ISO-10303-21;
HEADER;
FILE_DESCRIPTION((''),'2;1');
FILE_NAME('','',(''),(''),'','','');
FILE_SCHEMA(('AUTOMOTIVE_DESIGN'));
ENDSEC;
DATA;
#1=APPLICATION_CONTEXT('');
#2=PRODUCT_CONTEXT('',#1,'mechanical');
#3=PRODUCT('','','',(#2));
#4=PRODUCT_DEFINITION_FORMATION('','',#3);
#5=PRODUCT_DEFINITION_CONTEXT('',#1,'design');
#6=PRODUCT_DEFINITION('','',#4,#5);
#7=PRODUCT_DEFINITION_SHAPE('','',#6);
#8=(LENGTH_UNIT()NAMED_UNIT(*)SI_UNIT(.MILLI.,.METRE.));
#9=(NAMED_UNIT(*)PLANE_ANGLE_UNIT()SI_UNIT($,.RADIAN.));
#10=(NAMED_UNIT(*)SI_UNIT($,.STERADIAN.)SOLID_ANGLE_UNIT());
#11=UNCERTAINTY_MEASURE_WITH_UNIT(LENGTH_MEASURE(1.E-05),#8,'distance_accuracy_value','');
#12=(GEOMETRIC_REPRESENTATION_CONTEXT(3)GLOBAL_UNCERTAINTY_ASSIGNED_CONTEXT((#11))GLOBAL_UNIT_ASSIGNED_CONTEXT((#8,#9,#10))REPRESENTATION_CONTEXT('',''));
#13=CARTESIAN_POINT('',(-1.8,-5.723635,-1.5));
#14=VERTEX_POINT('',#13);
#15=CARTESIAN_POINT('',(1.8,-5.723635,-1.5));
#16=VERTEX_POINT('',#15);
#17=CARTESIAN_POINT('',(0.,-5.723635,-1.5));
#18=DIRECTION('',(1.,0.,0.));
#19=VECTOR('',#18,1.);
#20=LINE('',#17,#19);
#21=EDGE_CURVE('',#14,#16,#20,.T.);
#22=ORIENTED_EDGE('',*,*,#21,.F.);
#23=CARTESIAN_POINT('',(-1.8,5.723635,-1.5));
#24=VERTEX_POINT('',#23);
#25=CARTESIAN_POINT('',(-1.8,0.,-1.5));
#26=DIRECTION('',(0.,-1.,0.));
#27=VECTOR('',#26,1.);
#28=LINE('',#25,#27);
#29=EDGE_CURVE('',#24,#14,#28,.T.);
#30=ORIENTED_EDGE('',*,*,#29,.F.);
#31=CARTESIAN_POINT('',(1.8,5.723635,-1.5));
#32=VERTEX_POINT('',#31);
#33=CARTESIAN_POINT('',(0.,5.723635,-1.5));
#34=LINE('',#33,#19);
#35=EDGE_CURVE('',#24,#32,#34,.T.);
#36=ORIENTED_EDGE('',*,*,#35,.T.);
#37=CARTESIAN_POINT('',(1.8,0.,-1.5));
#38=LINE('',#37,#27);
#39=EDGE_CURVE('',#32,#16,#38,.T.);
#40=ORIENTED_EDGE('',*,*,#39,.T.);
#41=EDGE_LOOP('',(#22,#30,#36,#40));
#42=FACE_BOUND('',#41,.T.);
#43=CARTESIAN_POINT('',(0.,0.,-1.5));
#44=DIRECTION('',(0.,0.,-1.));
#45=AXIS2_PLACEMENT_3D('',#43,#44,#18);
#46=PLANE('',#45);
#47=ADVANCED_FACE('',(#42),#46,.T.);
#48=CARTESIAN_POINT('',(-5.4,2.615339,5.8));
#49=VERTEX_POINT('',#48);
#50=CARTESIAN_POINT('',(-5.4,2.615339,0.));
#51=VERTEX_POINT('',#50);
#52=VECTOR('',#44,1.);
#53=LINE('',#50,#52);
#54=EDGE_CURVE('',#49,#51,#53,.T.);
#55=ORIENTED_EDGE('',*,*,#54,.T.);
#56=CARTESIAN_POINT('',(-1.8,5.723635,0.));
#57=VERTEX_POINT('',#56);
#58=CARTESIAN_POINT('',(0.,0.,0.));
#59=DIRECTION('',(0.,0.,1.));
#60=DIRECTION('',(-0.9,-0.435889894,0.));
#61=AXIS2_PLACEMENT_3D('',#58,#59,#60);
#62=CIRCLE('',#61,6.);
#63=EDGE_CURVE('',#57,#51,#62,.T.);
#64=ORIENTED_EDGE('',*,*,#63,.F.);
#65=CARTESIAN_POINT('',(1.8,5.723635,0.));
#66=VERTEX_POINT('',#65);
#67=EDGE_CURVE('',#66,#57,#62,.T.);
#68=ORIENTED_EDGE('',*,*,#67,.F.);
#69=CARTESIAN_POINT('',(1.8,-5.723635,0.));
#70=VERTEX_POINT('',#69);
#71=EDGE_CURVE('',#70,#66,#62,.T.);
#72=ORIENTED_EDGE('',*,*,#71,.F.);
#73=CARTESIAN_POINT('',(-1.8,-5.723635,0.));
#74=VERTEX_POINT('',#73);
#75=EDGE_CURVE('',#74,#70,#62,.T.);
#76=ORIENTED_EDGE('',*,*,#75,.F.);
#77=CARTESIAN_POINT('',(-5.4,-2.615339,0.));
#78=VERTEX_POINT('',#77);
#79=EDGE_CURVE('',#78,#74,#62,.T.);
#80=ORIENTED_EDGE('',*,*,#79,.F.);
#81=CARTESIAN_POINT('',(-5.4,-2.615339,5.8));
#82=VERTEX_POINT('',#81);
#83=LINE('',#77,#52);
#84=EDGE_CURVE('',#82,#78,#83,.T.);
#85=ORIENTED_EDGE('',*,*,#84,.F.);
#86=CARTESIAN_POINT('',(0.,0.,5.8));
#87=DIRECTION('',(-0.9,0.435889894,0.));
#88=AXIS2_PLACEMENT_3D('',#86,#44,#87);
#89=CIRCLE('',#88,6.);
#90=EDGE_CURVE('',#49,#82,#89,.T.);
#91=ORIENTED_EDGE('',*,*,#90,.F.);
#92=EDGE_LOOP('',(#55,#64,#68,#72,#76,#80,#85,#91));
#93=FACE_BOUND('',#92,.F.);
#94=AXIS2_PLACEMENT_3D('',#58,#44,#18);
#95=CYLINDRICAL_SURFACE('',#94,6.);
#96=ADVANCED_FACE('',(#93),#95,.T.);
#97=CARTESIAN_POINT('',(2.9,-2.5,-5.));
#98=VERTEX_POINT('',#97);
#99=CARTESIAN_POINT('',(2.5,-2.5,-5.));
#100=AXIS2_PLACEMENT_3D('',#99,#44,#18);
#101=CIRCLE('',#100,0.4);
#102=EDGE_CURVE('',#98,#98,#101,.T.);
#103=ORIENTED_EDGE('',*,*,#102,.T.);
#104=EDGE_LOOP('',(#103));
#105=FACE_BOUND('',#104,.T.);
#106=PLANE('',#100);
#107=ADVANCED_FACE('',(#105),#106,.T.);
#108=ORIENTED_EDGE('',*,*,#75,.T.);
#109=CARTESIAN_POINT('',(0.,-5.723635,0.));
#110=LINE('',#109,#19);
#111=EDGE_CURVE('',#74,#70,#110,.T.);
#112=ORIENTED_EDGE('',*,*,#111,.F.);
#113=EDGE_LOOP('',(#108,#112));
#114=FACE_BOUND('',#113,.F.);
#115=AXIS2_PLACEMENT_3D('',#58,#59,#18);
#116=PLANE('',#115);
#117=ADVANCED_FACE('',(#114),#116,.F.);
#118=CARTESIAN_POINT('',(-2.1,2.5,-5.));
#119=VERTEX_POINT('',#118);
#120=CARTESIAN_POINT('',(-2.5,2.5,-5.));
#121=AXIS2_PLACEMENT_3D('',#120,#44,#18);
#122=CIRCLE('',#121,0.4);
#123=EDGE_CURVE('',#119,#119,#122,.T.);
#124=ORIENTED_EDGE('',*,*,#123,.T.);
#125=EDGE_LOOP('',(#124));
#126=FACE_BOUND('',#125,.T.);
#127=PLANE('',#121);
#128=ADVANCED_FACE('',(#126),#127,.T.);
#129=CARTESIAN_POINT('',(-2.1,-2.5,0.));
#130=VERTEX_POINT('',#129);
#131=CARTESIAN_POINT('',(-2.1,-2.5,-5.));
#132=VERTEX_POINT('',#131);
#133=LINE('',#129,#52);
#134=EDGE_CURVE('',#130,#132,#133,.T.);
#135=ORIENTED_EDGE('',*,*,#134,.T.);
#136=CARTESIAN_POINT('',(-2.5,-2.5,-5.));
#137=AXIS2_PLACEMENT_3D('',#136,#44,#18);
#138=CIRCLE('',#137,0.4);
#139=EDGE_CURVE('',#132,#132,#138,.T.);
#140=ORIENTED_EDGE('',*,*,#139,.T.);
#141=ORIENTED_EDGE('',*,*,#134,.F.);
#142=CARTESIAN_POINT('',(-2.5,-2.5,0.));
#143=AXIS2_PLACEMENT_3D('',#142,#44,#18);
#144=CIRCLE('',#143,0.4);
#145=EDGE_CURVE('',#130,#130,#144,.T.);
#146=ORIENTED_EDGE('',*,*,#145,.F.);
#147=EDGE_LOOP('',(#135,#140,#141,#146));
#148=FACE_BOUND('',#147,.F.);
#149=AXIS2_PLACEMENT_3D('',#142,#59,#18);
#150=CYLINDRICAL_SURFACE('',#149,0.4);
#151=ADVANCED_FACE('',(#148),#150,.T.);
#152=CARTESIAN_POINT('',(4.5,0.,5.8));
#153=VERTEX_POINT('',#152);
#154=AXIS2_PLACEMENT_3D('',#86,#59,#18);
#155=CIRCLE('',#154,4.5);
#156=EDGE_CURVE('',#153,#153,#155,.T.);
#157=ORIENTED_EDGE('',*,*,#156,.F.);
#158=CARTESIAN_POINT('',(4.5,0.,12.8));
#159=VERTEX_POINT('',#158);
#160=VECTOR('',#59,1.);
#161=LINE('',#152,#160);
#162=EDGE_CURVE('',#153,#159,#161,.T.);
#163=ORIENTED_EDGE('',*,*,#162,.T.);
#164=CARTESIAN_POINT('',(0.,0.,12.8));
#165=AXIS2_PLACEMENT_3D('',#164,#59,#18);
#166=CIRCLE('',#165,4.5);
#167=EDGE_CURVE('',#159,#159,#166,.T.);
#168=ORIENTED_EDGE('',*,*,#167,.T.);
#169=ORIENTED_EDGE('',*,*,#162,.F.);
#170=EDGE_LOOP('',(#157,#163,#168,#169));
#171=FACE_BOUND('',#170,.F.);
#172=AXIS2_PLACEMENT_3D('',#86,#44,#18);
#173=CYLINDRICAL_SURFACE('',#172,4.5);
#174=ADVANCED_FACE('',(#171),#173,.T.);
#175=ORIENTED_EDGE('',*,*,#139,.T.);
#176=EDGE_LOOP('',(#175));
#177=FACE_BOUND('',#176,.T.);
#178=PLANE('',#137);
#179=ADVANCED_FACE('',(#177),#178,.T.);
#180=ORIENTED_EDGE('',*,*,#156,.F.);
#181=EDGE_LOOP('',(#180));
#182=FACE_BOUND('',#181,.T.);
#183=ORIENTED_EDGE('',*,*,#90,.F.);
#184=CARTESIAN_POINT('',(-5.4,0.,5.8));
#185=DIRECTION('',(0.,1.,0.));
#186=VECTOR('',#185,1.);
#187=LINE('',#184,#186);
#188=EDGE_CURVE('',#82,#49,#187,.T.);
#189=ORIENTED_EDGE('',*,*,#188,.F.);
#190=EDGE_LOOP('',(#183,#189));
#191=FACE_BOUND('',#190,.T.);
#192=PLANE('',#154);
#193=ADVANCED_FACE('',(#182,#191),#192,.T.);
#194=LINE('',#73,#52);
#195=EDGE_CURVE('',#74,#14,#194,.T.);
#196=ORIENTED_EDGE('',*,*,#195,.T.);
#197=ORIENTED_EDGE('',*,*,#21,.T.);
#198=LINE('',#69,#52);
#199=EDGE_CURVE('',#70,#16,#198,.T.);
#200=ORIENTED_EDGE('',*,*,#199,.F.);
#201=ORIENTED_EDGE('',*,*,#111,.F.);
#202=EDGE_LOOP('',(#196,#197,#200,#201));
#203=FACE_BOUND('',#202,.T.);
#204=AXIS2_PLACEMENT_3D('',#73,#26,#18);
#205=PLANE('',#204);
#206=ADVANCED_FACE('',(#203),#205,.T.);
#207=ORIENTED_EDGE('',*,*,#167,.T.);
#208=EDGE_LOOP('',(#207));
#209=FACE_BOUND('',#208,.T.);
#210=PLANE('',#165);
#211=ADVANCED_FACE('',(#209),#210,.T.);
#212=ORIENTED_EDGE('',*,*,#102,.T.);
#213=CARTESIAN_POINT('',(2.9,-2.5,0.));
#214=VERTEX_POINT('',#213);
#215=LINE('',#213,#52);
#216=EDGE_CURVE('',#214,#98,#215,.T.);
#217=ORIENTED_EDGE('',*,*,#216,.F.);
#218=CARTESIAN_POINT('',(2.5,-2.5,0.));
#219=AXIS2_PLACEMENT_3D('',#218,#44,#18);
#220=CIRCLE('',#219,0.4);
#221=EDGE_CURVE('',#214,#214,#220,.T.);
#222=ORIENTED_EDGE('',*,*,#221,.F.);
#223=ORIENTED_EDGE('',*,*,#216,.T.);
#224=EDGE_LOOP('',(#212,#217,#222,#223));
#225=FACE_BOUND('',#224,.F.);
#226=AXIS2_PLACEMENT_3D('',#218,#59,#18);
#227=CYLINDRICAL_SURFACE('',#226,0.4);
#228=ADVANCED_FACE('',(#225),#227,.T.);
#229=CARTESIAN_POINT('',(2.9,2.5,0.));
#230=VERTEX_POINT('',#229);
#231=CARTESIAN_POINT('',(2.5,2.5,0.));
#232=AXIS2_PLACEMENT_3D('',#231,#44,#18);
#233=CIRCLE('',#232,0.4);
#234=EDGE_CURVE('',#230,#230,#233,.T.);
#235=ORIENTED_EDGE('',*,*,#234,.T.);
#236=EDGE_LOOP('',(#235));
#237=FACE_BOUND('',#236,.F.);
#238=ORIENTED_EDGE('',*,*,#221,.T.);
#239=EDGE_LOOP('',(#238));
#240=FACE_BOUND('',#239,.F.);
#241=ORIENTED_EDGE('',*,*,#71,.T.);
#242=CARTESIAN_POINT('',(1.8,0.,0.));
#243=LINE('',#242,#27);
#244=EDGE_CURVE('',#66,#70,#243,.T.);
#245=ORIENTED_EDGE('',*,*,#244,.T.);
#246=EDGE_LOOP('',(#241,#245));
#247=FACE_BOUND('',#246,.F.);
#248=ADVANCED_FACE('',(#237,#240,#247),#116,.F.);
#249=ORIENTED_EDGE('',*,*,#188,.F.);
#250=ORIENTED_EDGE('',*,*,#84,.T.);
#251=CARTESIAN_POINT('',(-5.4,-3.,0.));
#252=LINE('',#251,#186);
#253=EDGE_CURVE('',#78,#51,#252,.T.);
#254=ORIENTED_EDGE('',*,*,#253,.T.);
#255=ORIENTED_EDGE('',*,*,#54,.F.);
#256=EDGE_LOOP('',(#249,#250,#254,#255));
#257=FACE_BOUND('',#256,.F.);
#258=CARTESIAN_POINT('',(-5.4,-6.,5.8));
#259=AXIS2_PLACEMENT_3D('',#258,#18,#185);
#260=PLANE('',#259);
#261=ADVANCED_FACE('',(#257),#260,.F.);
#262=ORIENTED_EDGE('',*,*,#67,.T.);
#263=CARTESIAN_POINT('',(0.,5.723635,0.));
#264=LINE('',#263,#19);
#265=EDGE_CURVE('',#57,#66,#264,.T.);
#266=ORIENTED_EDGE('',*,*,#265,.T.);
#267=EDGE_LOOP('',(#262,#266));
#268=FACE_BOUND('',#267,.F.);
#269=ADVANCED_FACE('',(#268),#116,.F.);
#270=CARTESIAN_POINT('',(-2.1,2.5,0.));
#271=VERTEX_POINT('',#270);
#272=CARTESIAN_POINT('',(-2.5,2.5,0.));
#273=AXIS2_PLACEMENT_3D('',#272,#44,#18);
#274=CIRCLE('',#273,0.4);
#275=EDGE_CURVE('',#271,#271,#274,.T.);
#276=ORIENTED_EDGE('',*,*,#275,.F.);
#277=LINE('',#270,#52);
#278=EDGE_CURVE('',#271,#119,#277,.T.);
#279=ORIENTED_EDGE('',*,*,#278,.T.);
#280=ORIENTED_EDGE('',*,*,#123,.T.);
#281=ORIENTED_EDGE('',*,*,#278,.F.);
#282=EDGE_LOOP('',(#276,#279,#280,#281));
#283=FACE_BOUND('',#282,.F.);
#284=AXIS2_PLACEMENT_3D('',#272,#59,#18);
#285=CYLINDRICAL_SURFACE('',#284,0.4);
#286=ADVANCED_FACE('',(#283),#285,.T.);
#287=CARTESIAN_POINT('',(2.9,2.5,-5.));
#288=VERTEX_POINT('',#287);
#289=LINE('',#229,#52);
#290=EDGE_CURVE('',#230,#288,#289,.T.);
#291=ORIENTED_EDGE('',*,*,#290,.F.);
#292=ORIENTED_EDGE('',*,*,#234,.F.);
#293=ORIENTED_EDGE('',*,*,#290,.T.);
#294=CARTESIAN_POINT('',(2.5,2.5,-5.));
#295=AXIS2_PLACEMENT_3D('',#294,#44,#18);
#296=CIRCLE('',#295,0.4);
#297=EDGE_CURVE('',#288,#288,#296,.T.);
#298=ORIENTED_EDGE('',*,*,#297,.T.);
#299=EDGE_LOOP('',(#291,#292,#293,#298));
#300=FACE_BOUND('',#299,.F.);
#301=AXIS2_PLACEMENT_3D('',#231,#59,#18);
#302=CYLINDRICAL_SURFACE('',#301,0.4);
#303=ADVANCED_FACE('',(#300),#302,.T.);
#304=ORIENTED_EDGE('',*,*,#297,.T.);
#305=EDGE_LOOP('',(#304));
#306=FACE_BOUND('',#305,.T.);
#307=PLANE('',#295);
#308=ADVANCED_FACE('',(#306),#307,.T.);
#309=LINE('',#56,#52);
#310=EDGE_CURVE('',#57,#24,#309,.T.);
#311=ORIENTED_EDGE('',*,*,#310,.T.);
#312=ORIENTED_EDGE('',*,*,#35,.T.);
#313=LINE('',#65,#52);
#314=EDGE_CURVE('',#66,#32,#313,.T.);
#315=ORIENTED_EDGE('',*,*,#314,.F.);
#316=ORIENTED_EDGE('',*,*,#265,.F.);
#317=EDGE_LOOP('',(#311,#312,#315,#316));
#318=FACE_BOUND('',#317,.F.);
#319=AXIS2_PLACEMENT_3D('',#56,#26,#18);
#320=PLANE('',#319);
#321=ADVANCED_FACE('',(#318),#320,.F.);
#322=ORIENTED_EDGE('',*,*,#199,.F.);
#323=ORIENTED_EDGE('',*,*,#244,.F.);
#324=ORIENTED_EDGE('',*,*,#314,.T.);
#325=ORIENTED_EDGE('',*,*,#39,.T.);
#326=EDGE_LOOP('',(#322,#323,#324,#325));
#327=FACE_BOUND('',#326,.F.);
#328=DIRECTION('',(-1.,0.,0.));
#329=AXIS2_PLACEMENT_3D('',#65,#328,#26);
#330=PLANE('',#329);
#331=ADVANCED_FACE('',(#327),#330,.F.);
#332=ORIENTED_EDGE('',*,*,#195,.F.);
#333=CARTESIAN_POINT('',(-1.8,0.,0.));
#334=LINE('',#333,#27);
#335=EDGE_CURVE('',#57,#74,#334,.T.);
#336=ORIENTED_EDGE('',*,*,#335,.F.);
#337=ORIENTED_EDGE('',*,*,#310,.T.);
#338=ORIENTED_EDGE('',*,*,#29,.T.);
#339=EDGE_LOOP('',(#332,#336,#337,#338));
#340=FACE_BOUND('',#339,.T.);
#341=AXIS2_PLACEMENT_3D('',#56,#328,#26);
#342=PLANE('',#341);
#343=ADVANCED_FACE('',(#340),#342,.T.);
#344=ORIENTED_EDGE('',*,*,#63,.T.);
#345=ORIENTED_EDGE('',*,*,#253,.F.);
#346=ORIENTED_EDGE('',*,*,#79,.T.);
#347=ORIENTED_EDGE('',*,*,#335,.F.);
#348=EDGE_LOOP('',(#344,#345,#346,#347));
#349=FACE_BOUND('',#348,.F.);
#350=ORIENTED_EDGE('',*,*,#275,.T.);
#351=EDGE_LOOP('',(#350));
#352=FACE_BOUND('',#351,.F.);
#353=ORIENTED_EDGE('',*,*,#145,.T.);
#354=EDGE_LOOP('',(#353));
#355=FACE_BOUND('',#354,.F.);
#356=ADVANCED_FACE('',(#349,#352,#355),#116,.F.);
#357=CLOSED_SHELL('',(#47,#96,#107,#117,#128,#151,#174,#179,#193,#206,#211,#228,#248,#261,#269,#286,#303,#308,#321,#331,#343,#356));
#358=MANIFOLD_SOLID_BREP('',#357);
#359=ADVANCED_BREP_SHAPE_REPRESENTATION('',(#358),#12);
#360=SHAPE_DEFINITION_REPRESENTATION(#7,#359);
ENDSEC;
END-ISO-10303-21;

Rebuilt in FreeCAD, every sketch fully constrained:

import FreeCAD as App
import Part
import Sketcher


def add_polygon(sketch, points):
    """Adds a closed chain of lines whose ends are joined by coincident constraints."""
    first, n = sketch.GeometryCount, len(points)
    for a, b in zip(points, points[1:] + points[:1]):
        sketch.addGeometry(Part.LineSegment(App.Vector(*a, 0), App.Vector(*b, 0)), False)
    for i in range(n):
        sketch.addConstraint(Sketcher.Constraint("Coincident", first + i, 2, first + (i + 1) % n, 1))

doc = App.newDocument("Part")
params = doc.addObject("Spreadsheet::Sheet", "Params")
for row, (alias, value) in enumerate([
    ("sketch1_diameter", "12 mm"),
    ("pad1_length", "5.8 mm"),
    ("sketch2_diameter", "9 mm"),
    ("pad2_length", "7 mm"),
    ("sketch3_height", "12 mm"),
    ("sketch3_width", "0.6 mm"),
    ("pocket1_length", "6 mm"),
    ("sketch4_diameter", "0.8 mm"),
    ("pad3_length", "5 mm"),
    ("sketch5_width", "3.6 mm"),
    ("pad4_length", "1.5 mm"),
], start=1):
    params.set(f"A{row}", alias)
    params.set(f"B{row}", "=" + value)
    params.setAlias(f"B{row}", alias)

body = doc.addObject("PartDesign::Body", "Body")

sketch1 = body.newObject("Sketcher::SketchObject", "Sketch")
sketch1.AttachmentSupport = (doc.getObject("XY_Plane"), [""])
sketch1.MapMode = "FlatFace"
sketch1.addGeometry(Part.Circle(App.Vector(0, 0, 0), App.Vector(0, 0, 1), 6), False)
sketch1.addConstraint([
    Sketcher.Constraint("Coincident", 0, 3, -1, 1),
    Sketcher.Constraint("Diameter", 0, 12.0),
])
sketch1.setExpression("Constraints[1]", "Params.sketch1_diameter")
pad1 = body.newObject("PartDesign::Pad", "Pad")
pad1.Profile = sketch1
pad1.setExpression("Length", "Params.pad1_length")

sketch2 = body.newObject("Sketcher::SketchObject", "Sketch001")
sketch2.AttachmentSupport = (doc.getObject("XY_Plane"), [""])
sketch2.MapMode = "FlatFace"
sketch2.AttachmentOffset = App.Placement(App.Vector(0, 0, 5.8), App.Rotation())
sketch2.addGeometry(Part.Circle(App.Vector(0, 0, 0), App.Vector(0, 0, 1), 4.5), False)
sketch2.addConstraint([
    Sketcher.Constraint("Coincident", 0, 3, -1, 1),
    Sketcher.Constraint("Diameter", 0, 9.0),
])
sketch2.setExpression("Constraints[1]", "Params.sketch2_diameter")
pad2 = body.newObject("PartDesign::Pad", "Pad001")
pad2.Profile = sketch2
pad2.setExpression("Length", "Params.pad2_length")

sketch3 = body.newObject("Sketcher::SketchObject", "Sketch002")
sketch3.AttachmentSupport = (doc.getObject("XY_Plane"), [""])
sketch3.MapMode = "FlatFace"
sketch3.AttachmentOffset = App.Placement(App.Vector(0, 0, 5.8), App.Rotation())
add_polygon(sketch3, [(-6, 6), (-6, -6), (-5.4, -6), (-5.4, 6)])
sketch3.addConstraint([
    Sketcher.Constraint("Vertical", 0),
    Sketcher.Constraint("Horizontal", 1),
    Sketcher.Constraint("Vertical", 2),
    Sketcher.Constraint("Horizontal", 3),
    Sketcher.Constraint("DistanceY", 0, 2, 0, 1, 12.0),
    Sketcher.Constraint("DistanceX", 1, 1, 1, 2, 0.6),
    Sketcher.Constraint("DistanceX", 0, 2, -1, 1, 6.0),
    Sketcher.Constraint("DistanceY", 0, 2, -1, 1, 6.0),
])
sketch3.setExpression("Constraints[8]", "Params.sketch3_height")
sketch3.setExpression("Constraints[9]", "Params.sketch3_width")
pocket1 = body.newObject("PartDesign::Pocket", "Pocket")
pocket1.Profile = sketch3
pocket1.setExpression("Length", "Params.pocket1_length")

sketch4 = body.newObject("Sketcher::SketchObject", "Sketch003")
sketch4.AttachmentSupport = (doc.getObject("XY_Plane"), [""])
sketch4.MapMode = "FlatFace"
sketch4.addGeometry([
    Part.Circle(App.Vector(-2.5, -2.5, 0), App.Vector(0, 0, 1), 0.4),
    Part.Circle(App.Vector(2.5, -2.5, 0), App.Vector(0, 0, 1), 0.4),
    Part.Circle(App.Vector(-2.5, 2.5, 0), App.Vector(0, 0, 1), 0.4),
    Part.Circle(App.Vector(2.5, 2.5, 0), App.Vector(0, 0, 1), 0.4),
], False)
sketch4.addConstraint([
    Sketcher.Constraint("Equal", 0, 1),
    Sketcher.Constraint("Equal", 1, 2),
    Sketcher.Constraint("Equal", 2, 3),
    Sketcher.Constraint("Symmetric", 1, 3, 2, 3, -1, 1),
    Sketcher.Constraint("Symmetric", 0, 3, 3, 3, -1, 1),
    Sketcher.Constraint("Symmetric", 0, 3, 1, 3, -2),
    Sketcher.Constraint("Diameter", 0, 0.8),
    Sketcher.Constraint("DistanceX", 0, 3, 1, 3, 5.0),
    Sketcher.Constraint("DistanceY", 0, 3, 2, 3, 5.0),
])
sketch4.setExpression("Constraints[6]", "Params.sketch4_diameter")
pad3 = body.newObject("PartDesign::Pad", "Pad002")
pad3.Profile = sketch4
pad3.setExpression("Length", "Params.pad3_length")
pad3.Reversed = True

sketch5 = body.newObject("Sketcher::SketchObject", "Sketch004")
sketch5.AttachmentSupport = (doc.getObject("XY_Plane"), [""])
sketch5.MapMode = "FlatFace"
add_polygon(sketch5, [(-1.8, -5.7), (-1.8, 5.7), (1.8, 5.7), (1.8, -5.7)])
sketch5.addConstraint([
    Sketcher.Constraint("Vertical", 0),
    Sketcher.Constraint("Horizontal", 1),
    Sketcher.Constraint("Vertical", 2),
    Sketcher.Constraint("Horizontal", 3),
    Sketcher.Constraint("Symmetric", 0, 2, 2, 2, -1, 1),
    Sketcher.Constraint("DistanceX", 1, 1, 1, 2, 3.6),
    Sketcher.Constraint("DistanceY", 0, 1, 0, 2, 11.44727),
])
sketch5.setExpression("Constraints[9]", "Params.sketch5_width")
pad4 = body.newObject("PartDesign::Pad", "Pad003")
pad4.Profile = sketch5
pad4.setExpression("Length", "Params.pad4_length")
pad4.Reversed = True

doc.recompute()
